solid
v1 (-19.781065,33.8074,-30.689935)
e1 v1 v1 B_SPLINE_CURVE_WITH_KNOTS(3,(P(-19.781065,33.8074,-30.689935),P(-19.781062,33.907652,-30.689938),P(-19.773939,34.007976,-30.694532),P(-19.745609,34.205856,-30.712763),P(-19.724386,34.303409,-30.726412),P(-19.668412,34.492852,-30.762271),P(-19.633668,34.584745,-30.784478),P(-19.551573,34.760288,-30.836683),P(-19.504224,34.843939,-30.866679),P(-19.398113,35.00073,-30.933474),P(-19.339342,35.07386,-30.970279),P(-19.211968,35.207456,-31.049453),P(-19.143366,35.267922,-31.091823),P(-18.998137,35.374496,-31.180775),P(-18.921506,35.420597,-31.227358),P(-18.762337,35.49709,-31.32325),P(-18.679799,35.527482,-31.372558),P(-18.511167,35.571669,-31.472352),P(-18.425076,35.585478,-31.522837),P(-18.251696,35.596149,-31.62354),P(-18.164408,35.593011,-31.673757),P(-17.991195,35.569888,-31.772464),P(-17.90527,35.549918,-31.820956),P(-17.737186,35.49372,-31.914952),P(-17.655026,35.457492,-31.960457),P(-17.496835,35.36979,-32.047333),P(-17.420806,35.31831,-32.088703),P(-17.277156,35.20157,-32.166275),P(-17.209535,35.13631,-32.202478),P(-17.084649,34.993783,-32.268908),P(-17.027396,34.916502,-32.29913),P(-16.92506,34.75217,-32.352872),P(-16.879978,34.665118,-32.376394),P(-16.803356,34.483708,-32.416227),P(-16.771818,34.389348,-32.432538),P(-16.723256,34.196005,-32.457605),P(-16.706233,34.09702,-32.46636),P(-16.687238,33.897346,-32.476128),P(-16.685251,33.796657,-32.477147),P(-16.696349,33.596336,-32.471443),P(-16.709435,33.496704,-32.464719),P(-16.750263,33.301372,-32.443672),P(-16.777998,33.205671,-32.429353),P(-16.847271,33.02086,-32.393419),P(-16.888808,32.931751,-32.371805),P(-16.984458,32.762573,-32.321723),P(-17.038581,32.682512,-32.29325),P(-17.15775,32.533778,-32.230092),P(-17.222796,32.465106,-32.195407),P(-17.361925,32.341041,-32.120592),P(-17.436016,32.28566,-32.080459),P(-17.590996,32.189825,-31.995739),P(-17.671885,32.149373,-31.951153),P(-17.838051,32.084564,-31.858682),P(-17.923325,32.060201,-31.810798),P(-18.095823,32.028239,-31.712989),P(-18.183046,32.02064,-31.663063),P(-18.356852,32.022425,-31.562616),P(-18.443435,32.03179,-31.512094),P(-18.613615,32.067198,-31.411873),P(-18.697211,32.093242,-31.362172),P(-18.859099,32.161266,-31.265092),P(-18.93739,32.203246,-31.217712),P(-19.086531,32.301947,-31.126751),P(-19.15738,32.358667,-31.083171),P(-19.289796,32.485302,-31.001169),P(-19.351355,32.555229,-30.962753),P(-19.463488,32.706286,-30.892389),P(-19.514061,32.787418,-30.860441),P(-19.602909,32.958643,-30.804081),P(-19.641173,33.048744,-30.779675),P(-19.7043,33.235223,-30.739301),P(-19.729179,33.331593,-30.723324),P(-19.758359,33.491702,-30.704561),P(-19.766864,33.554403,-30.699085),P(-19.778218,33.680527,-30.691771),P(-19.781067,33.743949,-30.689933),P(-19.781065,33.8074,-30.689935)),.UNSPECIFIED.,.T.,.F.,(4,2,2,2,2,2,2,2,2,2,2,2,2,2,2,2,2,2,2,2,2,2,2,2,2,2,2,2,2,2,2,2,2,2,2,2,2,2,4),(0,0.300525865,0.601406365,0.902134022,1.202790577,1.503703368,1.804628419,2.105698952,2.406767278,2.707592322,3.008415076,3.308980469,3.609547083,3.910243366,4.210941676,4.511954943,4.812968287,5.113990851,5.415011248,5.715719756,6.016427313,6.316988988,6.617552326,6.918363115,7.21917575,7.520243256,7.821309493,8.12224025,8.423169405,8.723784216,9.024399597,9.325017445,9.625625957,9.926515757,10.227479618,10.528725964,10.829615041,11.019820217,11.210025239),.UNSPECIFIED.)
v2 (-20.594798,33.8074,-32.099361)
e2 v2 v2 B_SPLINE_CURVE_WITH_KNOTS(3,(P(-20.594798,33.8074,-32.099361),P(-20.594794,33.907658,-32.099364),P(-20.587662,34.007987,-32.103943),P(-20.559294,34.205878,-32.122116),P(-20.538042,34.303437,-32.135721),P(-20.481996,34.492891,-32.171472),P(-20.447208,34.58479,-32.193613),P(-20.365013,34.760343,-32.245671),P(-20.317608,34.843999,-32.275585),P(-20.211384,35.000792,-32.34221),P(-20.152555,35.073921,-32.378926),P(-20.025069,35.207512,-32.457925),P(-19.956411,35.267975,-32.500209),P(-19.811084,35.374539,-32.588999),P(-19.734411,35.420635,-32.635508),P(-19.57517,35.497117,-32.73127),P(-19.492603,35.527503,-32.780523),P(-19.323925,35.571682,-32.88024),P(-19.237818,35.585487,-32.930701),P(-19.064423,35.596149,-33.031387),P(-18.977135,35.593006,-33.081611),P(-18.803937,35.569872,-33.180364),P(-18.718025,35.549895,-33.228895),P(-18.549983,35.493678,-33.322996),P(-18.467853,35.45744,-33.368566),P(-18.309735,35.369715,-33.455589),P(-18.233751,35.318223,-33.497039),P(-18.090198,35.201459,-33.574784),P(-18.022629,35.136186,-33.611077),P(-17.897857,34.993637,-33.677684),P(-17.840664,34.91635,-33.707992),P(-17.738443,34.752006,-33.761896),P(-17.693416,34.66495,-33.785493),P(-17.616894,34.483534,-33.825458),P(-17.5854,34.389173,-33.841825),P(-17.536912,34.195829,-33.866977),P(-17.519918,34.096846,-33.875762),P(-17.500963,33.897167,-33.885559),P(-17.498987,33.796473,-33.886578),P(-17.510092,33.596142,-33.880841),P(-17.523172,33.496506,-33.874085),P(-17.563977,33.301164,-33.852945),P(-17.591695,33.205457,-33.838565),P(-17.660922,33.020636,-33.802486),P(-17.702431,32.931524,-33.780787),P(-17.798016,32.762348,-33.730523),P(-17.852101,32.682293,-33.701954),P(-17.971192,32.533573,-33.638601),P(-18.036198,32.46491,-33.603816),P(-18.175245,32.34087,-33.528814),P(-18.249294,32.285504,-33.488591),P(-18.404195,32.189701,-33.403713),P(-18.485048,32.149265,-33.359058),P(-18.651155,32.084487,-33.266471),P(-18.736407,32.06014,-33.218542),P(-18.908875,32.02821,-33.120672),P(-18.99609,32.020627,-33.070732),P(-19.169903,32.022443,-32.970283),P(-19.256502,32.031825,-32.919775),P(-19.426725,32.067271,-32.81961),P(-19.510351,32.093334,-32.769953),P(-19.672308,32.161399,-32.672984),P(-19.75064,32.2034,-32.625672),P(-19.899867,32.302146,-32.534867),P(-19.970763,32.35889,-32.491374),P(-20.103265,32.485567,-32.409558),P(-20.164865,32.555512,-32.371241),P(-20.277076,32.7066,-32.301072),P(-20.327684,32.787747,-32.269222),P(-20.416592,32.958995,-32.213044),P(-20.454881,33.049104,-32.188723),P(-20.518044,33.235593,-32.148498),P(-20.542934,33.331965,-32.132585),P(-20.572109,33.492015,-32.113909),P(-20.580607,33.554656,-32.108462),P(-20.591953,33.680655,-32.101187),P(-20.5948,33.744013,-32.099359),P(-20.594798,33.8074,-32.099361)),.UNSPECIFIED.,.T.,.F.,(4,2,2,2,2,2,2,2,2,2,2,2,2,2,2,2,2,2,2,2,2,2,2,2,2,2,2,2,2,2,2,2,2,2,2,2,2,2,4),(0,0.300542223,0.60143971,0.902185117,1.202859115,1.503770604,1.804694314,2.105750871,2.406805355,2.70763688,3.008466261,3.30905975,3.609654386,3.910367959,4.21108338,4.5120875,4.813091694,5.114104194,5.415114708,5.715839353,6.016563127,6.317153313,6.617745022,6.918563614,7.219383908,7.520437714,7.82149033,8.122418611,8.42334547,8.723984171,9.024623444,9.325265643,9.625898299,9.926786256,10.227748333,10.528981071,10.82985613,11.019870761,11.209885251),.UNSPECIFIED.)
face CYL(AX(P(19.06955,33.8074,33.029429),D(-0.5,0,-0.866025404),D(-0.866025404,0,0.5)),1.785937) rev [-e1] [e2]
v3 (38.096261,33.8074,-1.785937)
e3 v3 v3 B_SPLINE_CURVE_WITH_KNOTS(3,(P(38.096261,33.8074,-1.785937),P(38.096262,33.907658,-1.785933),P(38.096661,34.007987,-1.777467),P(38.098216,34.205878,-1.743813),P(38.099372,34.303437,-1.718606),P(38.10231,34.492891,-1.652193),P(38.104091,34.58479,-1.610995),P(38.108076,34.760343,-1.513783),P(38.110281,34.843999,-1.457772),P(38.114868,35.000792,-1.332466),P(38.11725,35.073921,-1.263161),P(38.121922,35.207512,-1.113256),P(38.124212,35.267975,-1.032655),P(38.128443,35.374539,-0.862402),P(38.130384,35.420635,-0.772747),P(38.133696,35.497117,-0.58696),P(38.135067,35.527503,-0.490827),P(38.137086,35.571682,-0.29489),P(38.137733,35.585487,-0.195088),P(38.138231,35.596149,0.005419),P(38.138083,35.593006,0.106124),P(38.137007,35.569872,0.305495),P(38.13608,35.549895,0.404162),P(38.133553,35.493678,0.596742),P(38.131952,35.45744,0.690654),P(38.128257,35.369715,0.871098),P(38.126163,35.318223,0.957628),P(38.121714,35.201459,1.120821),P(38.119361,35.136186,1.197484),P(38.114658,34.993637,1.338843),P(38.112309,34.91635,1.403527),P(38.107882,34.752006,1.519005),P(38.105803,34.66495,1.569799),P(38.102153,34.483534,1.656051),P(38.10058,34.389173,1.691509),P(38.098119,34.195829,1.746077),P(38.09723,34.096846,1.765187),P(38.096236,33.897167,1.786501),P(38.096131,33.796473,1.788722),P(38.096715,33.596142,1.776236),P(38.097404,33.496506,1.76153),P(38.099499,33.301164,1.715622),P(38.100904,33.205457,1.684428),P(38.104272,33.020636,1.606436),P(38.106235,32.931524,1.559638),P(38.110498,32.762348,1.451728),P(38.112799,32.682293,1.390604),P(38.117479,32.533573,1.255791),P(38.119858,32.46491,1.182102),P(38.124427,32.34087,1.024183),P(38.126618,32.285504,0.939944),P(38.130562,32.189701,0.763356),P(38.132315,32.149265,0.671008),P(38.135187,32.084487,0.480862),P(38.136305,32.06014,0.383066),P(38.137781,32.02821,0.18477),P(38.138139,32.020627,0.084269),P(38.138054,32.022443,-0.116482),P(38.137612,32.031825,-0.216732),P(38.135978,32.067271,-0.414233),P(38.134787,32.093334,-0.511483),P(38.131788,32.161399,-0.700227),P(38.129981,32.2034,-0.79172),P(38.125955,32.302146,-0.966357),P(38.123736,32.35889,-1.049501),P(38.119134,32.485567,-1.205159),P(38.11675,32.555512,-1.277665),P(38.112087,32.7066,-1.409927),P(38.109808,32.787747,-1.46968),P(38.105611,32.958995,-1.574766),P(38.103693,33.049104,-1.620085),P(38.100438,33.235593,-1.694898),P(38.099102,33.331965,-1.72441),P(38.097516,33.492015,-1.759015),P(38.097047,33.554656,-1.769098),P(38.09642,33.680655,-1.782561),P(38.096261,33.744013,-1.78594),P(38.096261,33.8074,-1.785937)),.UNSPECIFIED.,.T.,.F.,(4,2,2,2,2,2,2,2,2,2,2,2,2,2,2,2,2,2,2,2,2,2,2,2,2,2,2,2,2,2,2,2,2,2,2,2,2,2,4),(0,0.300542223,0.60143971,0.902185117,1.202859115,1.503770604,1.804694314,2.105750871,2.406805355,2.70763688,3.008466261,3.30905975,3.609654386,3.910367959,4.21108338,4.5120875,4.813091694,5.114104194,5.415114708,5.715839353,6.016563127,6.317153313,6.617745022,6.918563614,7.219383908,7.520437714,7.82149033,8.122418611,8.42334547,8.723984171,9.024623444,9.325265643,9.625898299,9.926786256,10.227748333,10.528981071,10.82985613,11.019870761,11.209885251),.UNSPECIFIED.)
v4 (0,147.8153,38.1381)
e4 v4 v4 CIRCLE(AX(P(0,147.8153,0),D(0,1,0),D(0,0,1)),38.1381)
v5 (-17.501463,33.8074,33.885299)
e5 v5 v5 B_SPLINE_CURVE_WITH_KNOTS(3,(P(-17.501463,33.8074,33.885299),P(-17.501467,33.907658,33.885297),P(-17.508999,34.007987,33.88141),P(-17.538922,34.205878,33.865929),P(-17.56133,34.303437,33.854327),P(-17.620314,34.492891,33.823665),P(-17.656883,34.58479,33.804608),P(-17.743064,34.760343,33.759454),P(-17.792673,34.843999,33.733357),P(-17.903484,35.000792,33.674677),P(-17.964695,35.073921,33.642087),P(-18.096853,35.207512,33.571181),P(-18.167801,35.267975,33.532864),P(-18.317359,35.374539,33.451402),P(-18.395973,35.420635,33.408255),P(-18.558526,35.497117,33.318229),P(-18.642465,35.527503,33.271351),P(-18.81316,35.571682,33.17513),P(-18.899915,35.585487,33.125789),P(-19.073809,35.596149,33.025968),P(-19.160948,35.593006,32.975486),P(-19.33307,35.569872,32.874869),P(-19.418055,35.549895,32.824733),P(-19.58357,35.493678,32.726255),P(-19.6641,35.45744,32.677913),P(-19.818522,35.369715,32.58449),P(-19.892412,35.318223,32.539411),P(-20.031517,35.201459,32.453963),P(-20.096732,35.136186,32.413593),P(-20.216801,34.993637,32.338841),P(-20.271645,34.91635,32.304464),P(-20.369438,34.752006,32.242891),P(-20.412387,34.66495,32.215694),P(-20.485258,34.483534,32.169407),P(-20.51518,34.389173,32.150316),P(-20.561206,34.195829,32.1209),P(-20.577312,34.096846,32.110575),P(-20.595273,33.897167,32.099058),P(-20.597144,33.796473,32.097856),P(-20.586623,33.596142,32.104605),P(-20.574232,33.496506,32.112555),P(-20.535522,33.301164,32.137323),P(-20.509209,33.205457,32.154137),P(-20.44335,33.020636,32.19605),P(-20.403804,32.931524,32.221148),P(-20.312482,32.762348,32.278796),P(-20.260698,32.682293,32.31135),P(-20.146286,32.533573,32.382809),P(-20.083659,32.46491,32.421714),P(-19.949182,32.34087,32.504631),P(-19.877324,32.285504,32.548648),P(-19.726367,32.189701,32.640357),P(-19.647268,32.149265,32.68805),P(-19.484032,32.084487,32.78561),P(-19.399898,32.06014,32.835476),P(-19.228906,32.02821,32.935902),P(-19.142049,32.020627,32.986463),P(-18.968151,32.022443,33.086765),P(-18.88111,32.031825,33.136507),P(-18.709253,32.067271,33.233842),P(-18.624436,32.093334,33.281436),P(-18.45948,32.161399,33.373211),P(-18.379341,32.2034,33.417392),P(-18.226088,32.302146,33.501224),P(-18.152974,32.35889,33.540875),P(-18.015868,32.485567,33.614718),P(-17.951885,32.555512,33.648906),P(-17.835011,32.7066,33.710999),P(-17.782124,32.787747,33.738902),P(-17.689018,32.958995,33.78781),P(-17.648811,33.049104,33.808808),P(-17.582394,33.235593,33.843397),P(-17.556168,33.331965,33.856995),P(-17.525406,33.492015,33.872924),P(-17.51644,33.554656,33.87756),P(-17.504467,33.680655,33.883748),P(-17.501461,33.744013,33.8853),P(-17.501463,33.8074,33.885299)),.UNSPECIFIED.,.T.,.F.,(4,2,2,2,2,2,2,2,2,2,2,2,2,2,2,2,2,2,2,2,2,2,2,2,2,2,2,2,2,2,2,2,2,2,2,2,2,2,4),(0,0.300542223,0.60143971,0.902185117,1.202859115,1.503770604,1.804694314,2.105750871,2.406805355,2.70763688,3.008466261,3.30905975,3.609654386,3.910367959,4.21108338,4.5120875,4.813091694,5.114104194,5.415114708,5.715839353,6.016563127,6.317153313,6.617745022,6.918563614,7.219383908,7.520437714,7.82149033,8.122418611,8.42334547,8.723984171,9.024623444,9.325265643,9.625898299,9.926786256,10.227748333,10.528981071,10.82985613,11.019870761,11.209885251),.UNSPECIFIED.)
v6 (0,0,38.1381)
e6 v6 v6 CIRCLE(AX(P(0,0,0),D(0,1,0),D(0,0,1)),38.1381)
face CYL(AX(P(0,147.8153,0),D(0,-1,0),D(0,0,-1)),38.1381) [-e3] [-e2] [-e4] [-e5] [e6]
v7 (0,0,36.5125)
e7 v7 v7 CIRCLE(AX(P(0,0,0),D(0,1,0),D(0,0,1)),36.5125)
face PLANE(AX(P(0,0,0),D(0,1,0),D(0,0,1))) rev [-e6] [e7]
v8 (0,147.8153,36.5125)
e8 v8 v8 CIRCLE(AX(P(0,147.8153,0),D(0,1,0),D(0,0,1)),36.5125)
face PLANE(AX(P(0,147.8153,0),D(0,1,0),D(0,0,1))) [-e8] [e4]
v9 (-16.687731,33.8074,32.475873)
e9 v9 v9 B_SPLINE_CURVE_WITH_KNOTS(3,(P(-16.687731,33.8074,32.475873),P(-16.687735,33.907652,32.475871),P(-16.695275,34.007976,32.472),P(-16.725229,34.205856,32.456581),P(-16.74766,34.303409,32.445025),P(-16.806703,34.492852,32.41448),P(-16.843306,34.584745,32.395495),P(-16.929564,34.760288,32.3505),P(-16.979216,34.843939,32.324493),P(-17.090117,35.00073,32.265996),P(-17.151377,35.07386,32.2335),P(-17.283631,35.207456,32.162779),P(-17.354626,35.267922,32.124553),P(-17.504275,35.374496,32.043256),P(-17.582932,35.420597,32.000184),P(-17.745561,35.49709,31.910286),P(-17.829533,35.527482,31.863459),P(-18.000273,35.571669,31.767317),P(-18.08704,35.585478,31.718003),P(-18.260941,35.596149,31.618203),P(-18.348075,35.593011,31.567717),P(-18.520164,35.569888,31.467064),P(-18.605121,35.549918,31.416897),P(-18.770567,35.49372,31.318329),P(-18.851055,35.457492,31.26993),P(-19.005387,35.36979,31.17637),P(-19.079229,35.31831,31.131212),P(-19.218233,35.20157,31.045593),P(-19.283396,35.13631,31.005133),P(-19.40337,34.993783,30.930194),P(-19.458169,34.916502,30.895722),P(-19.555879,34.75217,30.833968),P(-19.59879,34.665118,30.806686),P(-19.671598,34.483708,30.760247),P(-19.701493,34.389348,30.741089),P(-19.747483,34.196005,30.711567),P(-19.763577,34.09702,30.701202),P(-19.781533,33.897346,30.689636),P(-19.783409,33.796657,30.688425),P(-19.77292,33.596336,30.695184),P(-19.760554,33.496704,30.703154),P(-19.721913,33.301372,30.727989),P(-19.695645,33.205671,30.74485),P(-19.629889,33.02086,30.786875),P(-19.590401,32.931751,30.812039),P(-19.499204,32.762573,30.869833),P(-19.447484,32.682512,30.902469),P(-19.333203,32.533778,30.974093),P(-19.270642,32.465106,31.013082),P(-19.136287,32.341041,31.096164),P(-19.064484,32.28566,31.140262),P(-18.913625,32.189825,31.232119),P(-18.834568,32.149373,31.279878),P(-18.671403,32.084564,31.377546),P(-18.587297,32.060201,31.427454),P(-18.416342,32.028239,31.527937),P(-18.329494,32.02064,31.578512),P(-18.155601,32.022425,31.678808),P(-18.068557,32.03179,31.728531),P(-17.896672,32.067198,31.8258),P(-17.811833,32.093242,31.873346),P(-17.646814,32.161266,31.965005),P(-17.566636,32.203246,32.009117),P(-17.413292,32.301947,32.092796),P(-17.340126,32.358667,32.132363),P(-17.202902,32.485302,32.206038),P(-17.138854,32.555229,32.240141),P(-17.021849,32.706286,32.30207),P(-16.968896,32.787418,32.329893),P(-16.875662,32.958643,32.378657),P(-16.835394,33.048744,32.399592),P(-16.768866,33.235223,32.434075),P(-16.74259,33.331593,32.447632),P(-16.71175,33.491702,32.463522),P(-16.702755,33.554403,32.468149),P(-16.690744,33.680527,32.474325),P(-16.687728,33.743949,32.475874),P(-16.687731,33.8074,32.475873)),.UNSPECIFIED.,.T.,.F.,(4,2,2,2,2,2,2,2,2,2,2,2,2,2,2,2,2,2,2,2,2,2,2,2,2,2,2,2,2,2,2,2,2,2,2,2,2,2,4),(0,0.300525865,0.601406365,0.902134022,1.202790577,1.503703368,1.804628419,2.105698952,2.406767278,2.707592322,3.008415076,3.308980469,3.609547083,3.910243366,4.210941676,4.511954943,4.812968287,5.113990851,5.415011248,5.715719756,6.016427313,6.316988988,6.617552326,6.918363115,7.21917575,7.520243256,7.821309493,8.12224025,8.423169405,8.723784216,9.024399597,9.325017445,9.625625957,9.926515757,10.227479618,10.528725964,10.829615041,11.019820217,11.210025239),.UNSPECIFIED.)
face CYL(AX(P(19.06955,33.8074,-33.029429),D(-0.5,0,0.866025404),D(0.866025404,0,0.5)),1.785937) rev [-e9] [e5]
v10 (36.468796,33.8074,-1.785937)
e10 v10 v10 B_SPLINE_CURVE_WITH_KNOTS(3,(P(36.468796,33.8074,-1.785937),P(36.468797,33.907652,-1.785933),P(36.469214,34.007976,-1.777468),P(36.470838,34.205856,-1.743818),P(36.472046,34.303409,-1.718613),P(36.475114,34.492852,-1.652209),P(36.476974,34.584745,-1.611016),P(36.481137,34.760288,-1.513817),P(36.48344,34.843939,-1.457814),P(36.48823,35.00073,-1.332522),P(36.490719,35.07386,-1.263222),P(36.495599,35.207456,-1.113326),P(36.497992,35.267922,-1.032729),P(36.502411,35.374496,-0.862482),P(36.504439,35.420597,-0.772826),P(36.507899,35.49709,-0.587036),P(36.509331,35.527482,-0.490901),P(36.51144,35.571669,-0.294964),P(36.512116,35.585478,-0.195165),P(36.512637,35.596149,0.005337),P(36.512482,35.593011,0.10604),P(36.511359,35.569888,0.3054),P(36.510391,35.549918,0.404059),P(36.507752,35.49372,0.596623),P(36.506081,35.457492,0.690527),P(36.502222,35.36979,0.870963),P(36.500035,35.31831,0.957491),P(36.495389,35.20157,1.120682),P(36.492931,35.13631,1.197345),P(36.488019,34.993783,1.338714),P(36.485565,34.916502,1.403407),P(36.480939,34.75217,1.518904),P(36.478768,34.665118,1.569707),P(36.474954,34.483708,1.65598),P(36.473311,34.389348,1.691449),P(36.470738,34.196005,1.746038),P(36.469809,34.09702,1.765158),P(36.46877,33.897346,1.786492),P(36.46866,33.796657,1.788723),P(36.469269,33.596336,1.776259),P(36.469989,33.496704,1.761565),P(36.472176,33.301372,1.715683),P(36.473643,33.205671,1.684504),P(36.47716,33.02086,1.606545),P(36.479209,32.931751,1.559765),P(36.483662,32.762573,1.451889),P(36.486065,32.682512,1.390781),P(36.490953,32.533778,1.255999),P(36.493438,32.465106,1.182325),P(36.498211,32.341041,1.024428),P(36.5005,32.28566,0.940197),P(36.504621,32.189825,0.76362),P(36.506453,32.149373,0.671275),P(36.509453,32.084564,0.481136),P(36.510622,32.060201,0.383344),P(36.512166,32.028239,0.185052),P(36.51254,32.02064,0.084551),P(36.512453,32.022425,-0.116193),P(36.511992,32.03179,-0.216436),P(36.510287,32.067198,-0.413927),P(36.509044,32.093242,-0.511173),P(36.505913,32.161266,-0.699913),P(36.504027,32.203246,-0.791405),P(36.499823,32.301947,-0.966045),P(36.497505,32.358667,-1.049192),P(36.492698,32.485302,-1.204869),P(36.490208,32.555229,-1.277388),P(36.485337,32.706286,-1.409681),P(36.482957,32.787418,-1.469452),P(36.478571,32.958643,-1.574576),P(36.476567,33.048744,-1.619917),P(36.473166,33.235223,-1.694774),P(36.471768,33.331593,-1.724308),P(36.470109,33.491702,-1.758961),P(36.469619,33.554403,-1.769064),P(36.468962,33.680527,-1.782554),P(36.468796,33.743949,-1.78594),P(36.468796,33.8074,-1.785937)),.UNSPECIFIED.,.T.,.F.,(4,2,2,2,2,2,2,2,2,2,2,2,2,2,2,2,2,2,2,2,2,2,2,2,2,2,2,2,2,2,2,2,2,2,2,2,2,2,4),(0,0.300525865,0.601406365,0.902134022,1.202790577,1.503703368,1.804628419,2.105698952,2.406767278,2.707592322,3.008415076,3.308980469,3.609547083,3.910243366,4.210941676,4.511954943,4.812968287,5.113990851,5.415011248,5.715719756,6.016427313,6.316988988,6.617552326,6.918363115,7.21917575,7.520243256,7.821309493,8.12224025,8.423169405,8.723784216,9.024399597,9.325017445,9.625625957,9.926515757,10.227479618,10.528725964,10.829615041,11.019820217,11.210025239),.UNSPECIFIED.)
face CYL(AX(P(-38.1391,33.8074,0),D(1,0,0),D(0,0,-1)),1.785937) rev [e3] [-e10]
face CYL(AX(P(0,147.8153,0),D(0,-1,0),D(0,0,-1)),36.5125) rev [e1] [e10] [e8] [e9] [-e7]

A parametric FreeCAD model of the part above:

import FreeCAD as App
import Part
import Sketcher

V = App.Vector
Q = App.Units.Quantity

doc = App.newDocument("Part")
body = doc.addObject("PartDesign::Body", "Body")

sketch1 = body.newObject("Sketcher::SketchObject", "Sketch")
sketch1.AttachmentSupport = (doc.getObject("XZ_Plane"), [""])
sketch1.MapMode = "FlatFace"
sketch1.addGeometry(Part.Circle(V(0, 0, 0), V(0, 0, 1), 38), False)
sketch1.addGeometry(Part.Circle(V(0, 0, 0), V(0, 0, 1), 37), False)
sketch1.addConstraint(Sketcher.Constraint("Coincident", 0, 3, -1, 1))
sketch1.addConstraint(Sketcher.Constraint("Coincident", 1, 3, -1, 1))
sketch1.addConstraint(Sketcher.Constraint("Diameter", 0, Q("3.003 in")))
sketch1.addConstraint(Sketcher.Constraint("Diameter", 1, Q("2.875 in")))
pad1 = body.newObject("PartDesign::Pad", "Pad")
pad1.Profile = sketch1
pad1.Length = Q("5.8195 in")
pad1.Reversed = True

sketch2 = body.newObject("Sketcher::SketchObject", "Sketch001")
sketch2.AttachmentSupport = (doc.getObject("YZ_Plane"), [""])
sketch2.MapMode = "FlatFace"
sketch2.AttachmentOffset = App.Placement(V(0, 0, 36.468796), App.Rotation())
sketch2.addGeometry(Part.Circle(V(33.8, 0, 0), V(0, 0, 1), 1.8), False)
sketch2.addConstraint(Sketcher.Constraint("PointOnObject", 0, 3, -1))
sketch2.addConstraint(Sketcher.Constraint("Diameter", 0, Q("0.140625 in")))
sketch2.addConstraint(Sketcher.Constraint("DistanceX", -1, 1, 0, 3, Q("1.331 in")))
pocket1 = body.newObject("PartDesign::Pocket", "Pocket")
pocket1.Profile = sketch2
pocket1.Length = 1.669304
pocket1.Reversed = True
doc.recompute()

polarpattern = body.newObject("PartDesign::PolarPattern", "PolarPattern")
polarpattern.Originals = [pocket1]
polarpattern.Axis = (doc.getObject("Y_Axis"), [""])
polarpattern.Angle = 360
polarpattern.Occurrences = 3
body.Tip = polarpattern

doc.recompute()
